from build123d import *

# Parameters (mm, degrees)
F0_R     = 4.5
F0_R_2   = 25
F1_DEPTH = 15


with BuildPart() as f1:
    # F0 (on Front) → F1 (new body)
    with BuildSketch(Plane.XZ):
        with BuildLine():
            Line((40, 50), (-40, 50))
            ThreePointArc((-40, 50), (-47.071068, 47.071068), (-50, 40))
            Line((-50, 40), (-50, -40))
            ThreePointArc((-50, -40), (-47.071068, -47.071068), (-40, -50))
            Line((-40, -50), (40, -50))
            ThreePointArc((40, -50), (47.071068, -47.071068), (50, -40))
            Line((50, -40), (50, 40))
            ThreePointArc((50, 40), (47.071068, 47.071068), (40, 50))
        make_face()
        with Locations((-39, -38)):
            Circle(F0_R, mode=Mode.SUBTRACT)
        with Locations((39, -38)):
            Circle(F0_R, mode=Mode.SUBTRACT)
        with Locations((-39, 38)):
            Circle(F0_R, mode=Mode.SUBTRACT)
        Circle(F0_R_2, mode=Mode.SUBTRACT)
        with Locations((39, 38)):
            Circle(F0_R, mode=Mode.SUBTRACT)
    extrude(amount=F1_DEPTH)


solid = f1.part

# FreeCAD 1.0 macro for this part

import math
import FreeCAD as App
import Part
import Sketcher
from FreeCAD import Vector

doc = App.newDocument("Part")
params = doc.addObject("Spreadsheet::Sheet", "Params")
for row, (alias, value) in enumerate([
    ("sketch1_diameter", "9 mm"),
    ("sketch1_diameter2", "50 mm"),
    ("sketch1_radius", "9.999999 mm"),
    ("sketch1_width", "80 mm"),
    ("pad1_length", "15 mm"),
], start=1):
    params.set(f"A{row}", alias)
    params.set(f"B{row}", "=" + value)
    params.setAlias(f"B{row}", alias)

body = doc.addObject("PartDesign::Body", "Body")

# Sketch on XZ plane
sketch1 = body.newObject("Sketcher::SketchObject", "Sketch")
sketch1.AttachmentSupport = (doc.getObject("XZ_Plane"), [""])
sketch1.MapMode = "FlatFace"
sketch1.addGeometry([
    Part.LineSegment(Vector(40, 50, 0), Vector(-40, 50, 0)),  # 0
    Part.ArcOfCircle(Part.Circle(Vector(-40, 40, 0), Vector(0, 0, 1), 10), math.radians(90), math.radians(180)),  # 1
    Part.LineSegment(Vector(-50, 40, 0), Vector(-50, -40, 0)),  # 2
    Part.ArcOfCircle(Part.Circle(Vector(-40, -40, 0), Vector(0, 0, 1), 10), math.radians(180), math.radians(270)),  # 3
    Part.LineSegment(Vector(-40, -50, 0), Vector(40, -50, 0)),  # 4
    Part.ArcOfCircle(Part.Circle(Vector(40, -40, 0), Vector(0, 0, 1), 10), math.radians(-90), math.radians(0)),  # 5
    Part.LineSegment(Vector(50, -40, 0), Vector(50, 40, 0)),  # 6
    Part.ArcOfCircle(Part.Circle(Vector(40, 40, 0), Vector(0, 0, 1), 10), math.radians(0), math.radians(90)),  # 7
    Part.Circle(Vector(-39, -38, 0), Vector(0, 0, 1), 4.5),  # 8
    Part.Circle(Vector(39, -38, 0), Vector(0, 0, 1), 4.5),  # 9
    Part.Circle(Vector(-39, 38, 0), Vector(0, 0, 1), 4.5),  # 10
    Part.Circle(Vector(0, 0, 0), Vector(0, 0, 1), 25),  # 11
    Part.Circle(Vector(39, 38, 0), Vector(0, 0, 1), 4.5),  # 12
], False)
sketch1.addConstraint([
    Sketcher.Constraint("Tangent", 0, 2, 1, 1),
    Sketcher.Constraint("Tangent", 1, 2, 2, 1),
    Sketcher.Constraint("Tangent", 2, 2, 3, 1),
    Sketcher.Constraint("Tangent", 3, 2, 4, 1),
    Sketcher.Constraint("Tangent", 4, 2, 5, 1),
    Sketcher.Constraint("Tangent", 5, 2, 6, 1),
    Sketcher.Constraint("Tangent", 6, 2, 7, 1),
    Sketcher.Constraint("Tangent", 7, 2, 0, 1),
    Sketcher.Constraint("Horizontal", 0),
    Sketcher.Constraint("Vertical", 2),
    Sketcher.Constraint("Horizontal", 4),
    Sketcher.Constraint("Vertical", 6),
    Sketcher.Constraint("Coincident", 11, 3, -1, 1),
    Sketcher.Constraint("Equal", 1, 3),
    Sketcher.Constraint("Equal", 3, 5),
    Sketcher.Constraint("Equal", 5, 7),
    Sketcher.Constraint("Equal", 8, 9),
    Sketcher.Constraint("Equal", 9, 10),
    Sketcher.Constraint("Equal", 10, 12),
    Sketcher.Constraint("Symmetric", 1, 3, 5, 3, -1, 1),
    Sketcher.Constraint("Symmetric", 9, 3, 10, 3, -1, 1),
    Sketcher.Constraint("Symmetric", 8, 3, 12, 3, -1, 1),
    Sketcher.Constraint("Symmetric", 8, 3, 9, 3, -2),
    Sketcher.Constraint("Equal", 4, 2),
    Sketcher.Constraint("Diameter", 8, 9.0),
    Sketcher.Constraint("Diameter", 11, 50.0),
    Sketcher.Constraint("Radius", 1, 9.999999),
    Sketcher.Constraint("DistanceX", 0, 2, 0, 1, 80.0),
    Sketcher.Constraint("DistanceX", 8, 3, -1, 1, 39.0),
    Sketcher.Constraint("DistanceY", 8, 3, -1, 1, 38.0),
])
sketch1.setExpression("Constraints[24]", "Params.sketch1_diameter")
sketch1.setExpression("Constraints[25]", "Params.sketch1_diameter2")
sketch1.setExpression("Constraints[26]", "Params.sketch1_radius")
sketch1.setExpression("Constraints[27]", "Params.sketch1_width")
pad1 = body.newObject("PartDesign::Pad", "Pad")
pad1.Profile = sketch1
pad1.setExpression("Length", "Params.pad1_length")

doc.recompute()
